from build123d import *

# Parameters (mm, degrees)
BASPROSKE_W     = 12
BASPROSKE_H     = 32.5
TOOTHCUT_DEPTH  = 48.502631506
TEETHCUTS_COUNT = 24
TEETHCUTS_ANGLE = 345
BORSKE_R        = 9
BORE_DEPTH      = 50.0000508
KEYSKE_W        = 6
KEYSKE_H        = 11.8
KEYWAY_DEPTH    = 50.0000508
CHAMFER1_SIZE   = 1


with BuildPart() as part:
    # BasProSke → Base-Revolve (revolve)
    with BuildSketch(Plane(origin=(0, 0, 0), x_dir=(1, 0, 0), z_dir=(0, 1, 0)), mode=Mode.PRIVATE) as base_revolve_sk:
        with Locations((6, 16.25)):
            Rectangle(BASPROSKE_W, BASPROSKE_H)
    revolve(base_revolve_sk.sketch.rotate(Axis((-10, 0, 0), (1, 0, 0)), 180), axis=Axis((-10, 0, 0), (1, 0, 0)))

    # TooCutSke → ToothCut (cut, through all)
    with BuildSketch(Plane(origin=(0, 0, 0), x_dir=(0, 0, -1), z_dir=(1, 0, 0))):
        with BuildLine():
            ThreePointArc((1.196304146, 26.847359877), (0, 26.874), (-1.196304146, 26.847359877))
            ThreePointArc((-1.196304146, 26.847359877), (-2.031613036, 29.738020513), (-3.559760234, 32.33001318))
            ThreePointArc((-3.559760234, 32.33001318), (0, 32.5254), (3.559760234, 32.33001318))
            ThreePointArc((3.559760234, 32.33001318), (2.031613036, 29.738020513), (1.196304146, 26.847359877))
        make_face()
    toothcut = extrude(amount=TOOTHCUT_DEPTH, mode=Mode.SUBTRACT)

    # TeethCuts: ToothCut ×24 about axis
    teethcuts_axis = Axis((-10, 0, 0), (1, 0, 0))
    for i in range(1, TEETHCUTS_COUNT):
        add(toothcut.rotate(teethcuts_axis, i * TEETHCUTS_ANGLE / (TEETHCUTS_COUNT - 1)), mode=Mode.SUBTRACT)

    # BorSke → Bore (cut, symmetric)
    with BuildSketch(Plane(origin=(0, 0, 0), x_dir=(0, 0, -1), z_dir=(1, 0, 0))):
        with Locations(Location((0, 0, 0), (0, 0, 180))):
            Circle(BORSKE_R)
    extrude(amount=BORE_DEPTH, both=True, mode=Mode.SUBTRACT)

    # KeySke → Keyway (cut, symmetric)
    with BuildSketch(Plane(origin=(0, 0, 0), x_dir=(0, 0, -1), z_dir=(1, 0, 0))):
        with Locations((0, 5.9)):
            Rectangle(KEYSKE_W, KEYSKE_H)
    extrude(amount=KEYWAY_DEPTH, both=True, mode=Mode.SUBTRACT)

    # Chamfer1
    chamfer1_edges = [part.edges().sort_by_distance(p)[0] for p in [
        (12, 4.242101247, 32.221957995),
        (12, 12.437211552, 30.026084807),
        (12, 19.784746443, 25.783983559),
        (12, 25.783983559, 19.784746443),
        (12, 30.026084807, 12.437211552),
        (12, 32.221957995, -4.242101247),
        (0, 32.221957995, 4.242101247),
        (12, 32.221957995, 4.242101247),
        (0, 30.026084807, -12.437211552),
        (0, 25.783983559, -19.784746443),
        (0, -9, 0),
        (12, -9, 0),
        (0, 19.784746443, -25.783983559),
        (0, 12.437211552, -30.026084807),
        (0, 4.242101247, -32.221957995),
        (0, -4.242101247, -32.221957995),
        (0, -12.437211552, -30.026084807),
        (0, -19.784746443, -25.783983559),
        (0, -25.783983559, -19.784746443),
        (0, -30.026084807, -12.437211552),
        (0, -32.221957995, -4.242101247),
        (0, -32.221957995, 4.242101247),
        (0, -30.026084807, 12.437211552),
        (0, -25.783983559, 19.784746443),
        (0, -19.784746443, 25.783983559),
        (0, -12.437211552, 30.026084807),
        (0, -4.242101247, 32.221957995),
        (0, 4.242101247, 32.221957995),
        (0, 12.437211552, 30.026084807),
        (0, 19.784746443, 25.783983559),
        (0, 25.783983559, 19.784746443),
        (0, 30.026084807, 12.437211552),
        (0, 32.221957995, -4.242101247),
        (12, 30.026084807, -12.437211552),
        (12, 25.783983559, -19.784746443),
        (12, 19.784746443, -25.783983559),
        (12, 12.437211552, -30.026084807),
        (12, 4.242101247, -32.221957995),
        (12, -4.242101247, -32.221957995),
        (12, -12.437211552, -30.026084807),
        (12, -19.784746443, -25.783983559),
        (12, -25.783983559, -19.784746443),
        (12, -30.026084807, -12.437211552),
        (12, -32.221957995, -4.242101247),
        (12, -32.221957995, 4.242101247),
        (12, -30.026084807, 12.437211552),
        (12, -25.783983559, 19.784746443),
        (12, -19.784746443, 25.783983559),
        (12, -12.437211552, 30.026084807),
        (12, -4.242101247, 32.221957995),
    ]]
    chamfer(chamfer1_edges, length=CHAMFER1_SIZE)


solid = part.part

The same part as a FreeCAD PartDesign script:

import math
import FreeCAD as App
import Part
import Sketcher
from FreeCAD import Vector
Q = App.Units.Quantity


def edges_at(feature, points):
    """Names of the edges that pass closest to the given points."""
    edges = feature.Shape.Edges
    near = lambda p: min(range(len(edges)), key=lambda i: edges[i].distToShape(Part.Vertex(*p))[0])
    return sorted({f"Edge{near(p) + 1}" for p in points})


def add_polygon(sketch, points):
    """Adds a closed chain of lines whose ends are joined by coincident constraints."""
    first, n = sketch.GeometryCount, len(points)
    for a, b in zip(points, points[1:] + points[:1]):
        sketch.addGeometry(Part.LineSegment(App.Vector(*a, 0), App.Vector(*b, 0)), False)
    for i in range(n):
        sketch.addConstraint(Sketcher.Constraint("Coincident", first + i, 2, first + (i + 1) % n, 1))

doc = App.newDocument("Part")
body = doc.addObject("PartDesign::Body", "Body")

# Sketch on XZ plane
sketch1 = body.newObject("Sketcher::SketchObject", "Sketch")
sketch1.AttachmentSupport = (doc.getObject("XZ_Plane"), [""])
sketch1.MapMode = "FlatFace"
add_polygon(sketch1, [(0, -32.5), (0, 0), (12, 0), (12, -32.5)])  # lines 0-3
sketch1.addConstraint(Sketcher.Constraint("Vertical", 0))
sketch1.addConstraint(Sketcher.Constraint("Horizontal", 1))
sketch1.addConstraint(Sketcher.Constraint("Vertical", 2))
sketch1.addConstraint(Sketcher.Constraint("Horizontal", 3))
sketch1.addConstraint(Sketcher.Constraint("Coincident", 0, 2, -1, 1))
sketch1.addConstraint(Sketcher.Constraint("DistanceX", 1, 1, 1, 2, Q("12 mm")))
sketch1.addConstraint(Sketcher.Constraint("DistanceY", 0, 1, 0, 2, Q("32.5 mm")))
revolution = body.newObject("PartDesign::Revolution", "Revolution")
revolution.Profile = sketch1
revolution.ReferenceAxis = (sketch1, ["H_Axis"])
revolution.Angle = 360

# Sketch on YZ plane
sketch2 = body.newObject("Sketcher::SketchObject", "Sketch001")
sketch2.AttachmentSupport = (doc.getObject("YZ_Plane"), [""])
sketch2.MapMode = "FlatFace"
sketch2.addGeometry(Part.ArcOfCircle(Part.Circle(Vector(0, 0, 0), Vector(0, 0, 1), 26.874), math.radians(-2.551382), math.radians(2.551382)), False)
sketch2.addGeometry(Part.ArcOfCircle(Part.Circle(Vector(24.987656, -13.051324, 0), Vector(0, 0, 1), 12), math.radians(52.275659), math.radians(81.084633)), False)
sketch2.addGeometry(Part.ArcOfCircle(Part.Circle(Vector(0, 0, 0), Vector(0, 0, 1), 32.5254), math.radians(-6.283355), math.radians(6.283355)), False)
sketch2.addGeometry(Part.ArcOfCircle(Part.Circle(Vector(24.987656, 13.051324, 0), Vector(0, 0, 1), 12), math.radians(-81.084633), math.radians(-52.275659)), False)
sketch2.addConstraint(Sketcher.Constraint("Coincident", 0, 1, 1, 2))
sketch2.addConstraint(Sketcher.Constraint("Coincident", 1, 1, 2, 1))
sketch2.addConstraint(Sketcher.Constraint("Coincident", 2, 2, 3, 2))
sketch2.addConstraint(Sketcher.Constraint("Coincident", 3, 1, 0, 2))
sketch2.addConstraint(Sketcher.Constraint("Coincident", 0, 3, -1, 1))
sketch2.addConstraint(Sketcher.Constraint("Coincident", 2, 3, -1, 1))
sketch2.addConstraint(Sketcher.Constraint("Equal", 1, 3))
sketch2.addConstraint(Sketcher.Constraint("Symmetric", 1, 3, 3, 3, -1))
sketch2.addConstraint(Sketcher.Constraint("Radius", 1, Q("12 mm")))
sketch2.addConstraint(Sketcher.Constraint("Radius", 0, Q("26.874 mm")))
sketch2.addConstraint(Sketcher.Constraint("Radius", 2, Q("32.5254 mm")))
sketch2.addConstraint(Sketcher.Constraint("DistanceX", -1, 1, 0, 1, Q("26.84736 mm")))
sketch2.addConstraint(Sketcher.Constraint("DistanceY", 1, 1, -1, 1, Q("3.55976 mm")))
pocket1 = body.newObject("PartDesign::Pocket", "Pocket")
pocket1.Profile = sketch2
pocket1.Type = "ThroughAll"
pocket1.Reversed = True
doc.recompute()

polarpattern = body.newObject("PartDesign::PolarPattern", "PolarPattern")
polarpattern.Originals = [pocket1]
polarpattern.Axis = (doc.getObject("X_Axis"), [""])
polarpattern.Angle = 360
polarpattern.Occurrences = 24
body.Tip = polarpattern

# Sketch on YZ plane
sketch3 = body.newObject("Sketcher::SketchObject", "Sketch002")
sketch3.AttachmentSupport = (doc.getObject("YZ_Plane"), [""])
sketch3.MapMode = "FlatFace"
sketch3.addGeometry(Part.Circle(Vector(0, 0, 0), Vector(0, 0, 1), 9), False)
sketch3.addConstraint(Sketcher.Constraint("Coincident", 0, 3, -1, 1))
sketch3.addConstraint(Sketcher.Constraint("Diameter", 0, Q("18 mm")))
pocket2 = body.newObject("PartDesign::Pocket", "Pocket001")
pocket2.Profile = sketch3
pocket2.Length = 100.000102
pocket2.Midplane = True

# Sketch on YZ plane
sketch4 = body.newObject("Sketcher::SketchObject", "Sketch003")
sketch4.AttachmentSupport = (doc.getObject("YZ_Plane"), [""])
sketch4.MapMode = "FlatFace"
add_polygon(sketch4, [(11.8, 3), (0, 3), (0, -3), (11.8, -3)])  # lines 0-3
sketch4.addConstraint(Sketcher.Constraint("Horizontal", 0))
sketch4.addConstraint(Sketcher.Constraint("Vertical", 1))
sketch4.addConstraint(Sketcher.Constraint("Horizontal", 2))
sketch4.addConstraint(Sketcher.Constraint("Vertical", 3))
sketch4.addConstraint(Sketcher.Constraint("Symmetric", 0, 2, 1, 2, -1, 1))
sketch4.addConstraint(Sketcher.Constraint("DistanceY", 1, 2, 1, 1, Q("6 mm")))
sketch4.addConstraint(Sketcher.Constraint("DistanceX", 0, 2, 0, 1, Q("11.8 mm")))
pocket3 = body.newObject("PartDesign::Pocket", "Pocket002")
pocket3.Profile = sketch4
pocket3.Length = 100.000102
pocket3.Midplane = True
doc.recompute()

chamfer = body.newObject("PartDesign::Chamfer", "Chamfer")
chamfer.Base = (pocket3, edges_at(pocket3, [
    (12, 4.242, 32.222),
    (12, 12.437, 30.026),
    (12, 19.785, 25.784),
    (12, 25.784, 19.785),
    (12, 30.026, 12.437),
    (12, 32.222, -4.242),
    (0, 32.222, 4.242),
    (12, 32.222, 4.242),
    (0, 30.026, -12.437),
    (0, 25.784, -19.785),
    (0, -9, 0),
    (12, -9, 0),
    (0, 19.785, -25.784),
    (0, 12.437, -30.026),
    (0, 4.242, -32.222),
    (0, -4.242, -32.222),
    (0, -12.437, -30.026),
    (0, -19.785, -25.784),
    (0, -25.784, -19.785),
    (0, -30.026, -12.437),
    (0, -32.222, -4.242),
    (0, -32.222, 4.242),
    (0, -30.026, 12.437),
    (0, -25.784, 19.785),
    (0, -19.785, 25.784),
    (0, -12.437, 30.026),
    (0, -4.242, 32.222),
    (0, 4.242, 32.222),
    (0, 12.437, 30.026),
    (0, 19.785, 25.784),
    (0, 25.784, 19.785),
    (0, 30.026, 12.437),
    (0, 32.222, -4.242),
    (12, 30.026, -12.437),
    (12, 25.784, -19.785),
    (12, 19.785, -25.784),
    (12, 12.437, -30.026),
    (12, 4.242, -32.222),
    (12, -4.242, -32.222),
    (12, -12.437, -30.026),
    (12, -19.785, -25.784),
    (12, -25.784, -19.785),
    (12, -30.026, -12.437),
    (12, -32.222, -4.242),
    (12, -32.222, 4.242),
    (12, -30.026, 12.437),
    (12, -25.784, 19.785),
    (12, -19.785, 25.784),
    (12, -12.437, 30.026),
    (12, -4.242, 32.222),
]))
chamfer.Size = 1

doc.recompute()
